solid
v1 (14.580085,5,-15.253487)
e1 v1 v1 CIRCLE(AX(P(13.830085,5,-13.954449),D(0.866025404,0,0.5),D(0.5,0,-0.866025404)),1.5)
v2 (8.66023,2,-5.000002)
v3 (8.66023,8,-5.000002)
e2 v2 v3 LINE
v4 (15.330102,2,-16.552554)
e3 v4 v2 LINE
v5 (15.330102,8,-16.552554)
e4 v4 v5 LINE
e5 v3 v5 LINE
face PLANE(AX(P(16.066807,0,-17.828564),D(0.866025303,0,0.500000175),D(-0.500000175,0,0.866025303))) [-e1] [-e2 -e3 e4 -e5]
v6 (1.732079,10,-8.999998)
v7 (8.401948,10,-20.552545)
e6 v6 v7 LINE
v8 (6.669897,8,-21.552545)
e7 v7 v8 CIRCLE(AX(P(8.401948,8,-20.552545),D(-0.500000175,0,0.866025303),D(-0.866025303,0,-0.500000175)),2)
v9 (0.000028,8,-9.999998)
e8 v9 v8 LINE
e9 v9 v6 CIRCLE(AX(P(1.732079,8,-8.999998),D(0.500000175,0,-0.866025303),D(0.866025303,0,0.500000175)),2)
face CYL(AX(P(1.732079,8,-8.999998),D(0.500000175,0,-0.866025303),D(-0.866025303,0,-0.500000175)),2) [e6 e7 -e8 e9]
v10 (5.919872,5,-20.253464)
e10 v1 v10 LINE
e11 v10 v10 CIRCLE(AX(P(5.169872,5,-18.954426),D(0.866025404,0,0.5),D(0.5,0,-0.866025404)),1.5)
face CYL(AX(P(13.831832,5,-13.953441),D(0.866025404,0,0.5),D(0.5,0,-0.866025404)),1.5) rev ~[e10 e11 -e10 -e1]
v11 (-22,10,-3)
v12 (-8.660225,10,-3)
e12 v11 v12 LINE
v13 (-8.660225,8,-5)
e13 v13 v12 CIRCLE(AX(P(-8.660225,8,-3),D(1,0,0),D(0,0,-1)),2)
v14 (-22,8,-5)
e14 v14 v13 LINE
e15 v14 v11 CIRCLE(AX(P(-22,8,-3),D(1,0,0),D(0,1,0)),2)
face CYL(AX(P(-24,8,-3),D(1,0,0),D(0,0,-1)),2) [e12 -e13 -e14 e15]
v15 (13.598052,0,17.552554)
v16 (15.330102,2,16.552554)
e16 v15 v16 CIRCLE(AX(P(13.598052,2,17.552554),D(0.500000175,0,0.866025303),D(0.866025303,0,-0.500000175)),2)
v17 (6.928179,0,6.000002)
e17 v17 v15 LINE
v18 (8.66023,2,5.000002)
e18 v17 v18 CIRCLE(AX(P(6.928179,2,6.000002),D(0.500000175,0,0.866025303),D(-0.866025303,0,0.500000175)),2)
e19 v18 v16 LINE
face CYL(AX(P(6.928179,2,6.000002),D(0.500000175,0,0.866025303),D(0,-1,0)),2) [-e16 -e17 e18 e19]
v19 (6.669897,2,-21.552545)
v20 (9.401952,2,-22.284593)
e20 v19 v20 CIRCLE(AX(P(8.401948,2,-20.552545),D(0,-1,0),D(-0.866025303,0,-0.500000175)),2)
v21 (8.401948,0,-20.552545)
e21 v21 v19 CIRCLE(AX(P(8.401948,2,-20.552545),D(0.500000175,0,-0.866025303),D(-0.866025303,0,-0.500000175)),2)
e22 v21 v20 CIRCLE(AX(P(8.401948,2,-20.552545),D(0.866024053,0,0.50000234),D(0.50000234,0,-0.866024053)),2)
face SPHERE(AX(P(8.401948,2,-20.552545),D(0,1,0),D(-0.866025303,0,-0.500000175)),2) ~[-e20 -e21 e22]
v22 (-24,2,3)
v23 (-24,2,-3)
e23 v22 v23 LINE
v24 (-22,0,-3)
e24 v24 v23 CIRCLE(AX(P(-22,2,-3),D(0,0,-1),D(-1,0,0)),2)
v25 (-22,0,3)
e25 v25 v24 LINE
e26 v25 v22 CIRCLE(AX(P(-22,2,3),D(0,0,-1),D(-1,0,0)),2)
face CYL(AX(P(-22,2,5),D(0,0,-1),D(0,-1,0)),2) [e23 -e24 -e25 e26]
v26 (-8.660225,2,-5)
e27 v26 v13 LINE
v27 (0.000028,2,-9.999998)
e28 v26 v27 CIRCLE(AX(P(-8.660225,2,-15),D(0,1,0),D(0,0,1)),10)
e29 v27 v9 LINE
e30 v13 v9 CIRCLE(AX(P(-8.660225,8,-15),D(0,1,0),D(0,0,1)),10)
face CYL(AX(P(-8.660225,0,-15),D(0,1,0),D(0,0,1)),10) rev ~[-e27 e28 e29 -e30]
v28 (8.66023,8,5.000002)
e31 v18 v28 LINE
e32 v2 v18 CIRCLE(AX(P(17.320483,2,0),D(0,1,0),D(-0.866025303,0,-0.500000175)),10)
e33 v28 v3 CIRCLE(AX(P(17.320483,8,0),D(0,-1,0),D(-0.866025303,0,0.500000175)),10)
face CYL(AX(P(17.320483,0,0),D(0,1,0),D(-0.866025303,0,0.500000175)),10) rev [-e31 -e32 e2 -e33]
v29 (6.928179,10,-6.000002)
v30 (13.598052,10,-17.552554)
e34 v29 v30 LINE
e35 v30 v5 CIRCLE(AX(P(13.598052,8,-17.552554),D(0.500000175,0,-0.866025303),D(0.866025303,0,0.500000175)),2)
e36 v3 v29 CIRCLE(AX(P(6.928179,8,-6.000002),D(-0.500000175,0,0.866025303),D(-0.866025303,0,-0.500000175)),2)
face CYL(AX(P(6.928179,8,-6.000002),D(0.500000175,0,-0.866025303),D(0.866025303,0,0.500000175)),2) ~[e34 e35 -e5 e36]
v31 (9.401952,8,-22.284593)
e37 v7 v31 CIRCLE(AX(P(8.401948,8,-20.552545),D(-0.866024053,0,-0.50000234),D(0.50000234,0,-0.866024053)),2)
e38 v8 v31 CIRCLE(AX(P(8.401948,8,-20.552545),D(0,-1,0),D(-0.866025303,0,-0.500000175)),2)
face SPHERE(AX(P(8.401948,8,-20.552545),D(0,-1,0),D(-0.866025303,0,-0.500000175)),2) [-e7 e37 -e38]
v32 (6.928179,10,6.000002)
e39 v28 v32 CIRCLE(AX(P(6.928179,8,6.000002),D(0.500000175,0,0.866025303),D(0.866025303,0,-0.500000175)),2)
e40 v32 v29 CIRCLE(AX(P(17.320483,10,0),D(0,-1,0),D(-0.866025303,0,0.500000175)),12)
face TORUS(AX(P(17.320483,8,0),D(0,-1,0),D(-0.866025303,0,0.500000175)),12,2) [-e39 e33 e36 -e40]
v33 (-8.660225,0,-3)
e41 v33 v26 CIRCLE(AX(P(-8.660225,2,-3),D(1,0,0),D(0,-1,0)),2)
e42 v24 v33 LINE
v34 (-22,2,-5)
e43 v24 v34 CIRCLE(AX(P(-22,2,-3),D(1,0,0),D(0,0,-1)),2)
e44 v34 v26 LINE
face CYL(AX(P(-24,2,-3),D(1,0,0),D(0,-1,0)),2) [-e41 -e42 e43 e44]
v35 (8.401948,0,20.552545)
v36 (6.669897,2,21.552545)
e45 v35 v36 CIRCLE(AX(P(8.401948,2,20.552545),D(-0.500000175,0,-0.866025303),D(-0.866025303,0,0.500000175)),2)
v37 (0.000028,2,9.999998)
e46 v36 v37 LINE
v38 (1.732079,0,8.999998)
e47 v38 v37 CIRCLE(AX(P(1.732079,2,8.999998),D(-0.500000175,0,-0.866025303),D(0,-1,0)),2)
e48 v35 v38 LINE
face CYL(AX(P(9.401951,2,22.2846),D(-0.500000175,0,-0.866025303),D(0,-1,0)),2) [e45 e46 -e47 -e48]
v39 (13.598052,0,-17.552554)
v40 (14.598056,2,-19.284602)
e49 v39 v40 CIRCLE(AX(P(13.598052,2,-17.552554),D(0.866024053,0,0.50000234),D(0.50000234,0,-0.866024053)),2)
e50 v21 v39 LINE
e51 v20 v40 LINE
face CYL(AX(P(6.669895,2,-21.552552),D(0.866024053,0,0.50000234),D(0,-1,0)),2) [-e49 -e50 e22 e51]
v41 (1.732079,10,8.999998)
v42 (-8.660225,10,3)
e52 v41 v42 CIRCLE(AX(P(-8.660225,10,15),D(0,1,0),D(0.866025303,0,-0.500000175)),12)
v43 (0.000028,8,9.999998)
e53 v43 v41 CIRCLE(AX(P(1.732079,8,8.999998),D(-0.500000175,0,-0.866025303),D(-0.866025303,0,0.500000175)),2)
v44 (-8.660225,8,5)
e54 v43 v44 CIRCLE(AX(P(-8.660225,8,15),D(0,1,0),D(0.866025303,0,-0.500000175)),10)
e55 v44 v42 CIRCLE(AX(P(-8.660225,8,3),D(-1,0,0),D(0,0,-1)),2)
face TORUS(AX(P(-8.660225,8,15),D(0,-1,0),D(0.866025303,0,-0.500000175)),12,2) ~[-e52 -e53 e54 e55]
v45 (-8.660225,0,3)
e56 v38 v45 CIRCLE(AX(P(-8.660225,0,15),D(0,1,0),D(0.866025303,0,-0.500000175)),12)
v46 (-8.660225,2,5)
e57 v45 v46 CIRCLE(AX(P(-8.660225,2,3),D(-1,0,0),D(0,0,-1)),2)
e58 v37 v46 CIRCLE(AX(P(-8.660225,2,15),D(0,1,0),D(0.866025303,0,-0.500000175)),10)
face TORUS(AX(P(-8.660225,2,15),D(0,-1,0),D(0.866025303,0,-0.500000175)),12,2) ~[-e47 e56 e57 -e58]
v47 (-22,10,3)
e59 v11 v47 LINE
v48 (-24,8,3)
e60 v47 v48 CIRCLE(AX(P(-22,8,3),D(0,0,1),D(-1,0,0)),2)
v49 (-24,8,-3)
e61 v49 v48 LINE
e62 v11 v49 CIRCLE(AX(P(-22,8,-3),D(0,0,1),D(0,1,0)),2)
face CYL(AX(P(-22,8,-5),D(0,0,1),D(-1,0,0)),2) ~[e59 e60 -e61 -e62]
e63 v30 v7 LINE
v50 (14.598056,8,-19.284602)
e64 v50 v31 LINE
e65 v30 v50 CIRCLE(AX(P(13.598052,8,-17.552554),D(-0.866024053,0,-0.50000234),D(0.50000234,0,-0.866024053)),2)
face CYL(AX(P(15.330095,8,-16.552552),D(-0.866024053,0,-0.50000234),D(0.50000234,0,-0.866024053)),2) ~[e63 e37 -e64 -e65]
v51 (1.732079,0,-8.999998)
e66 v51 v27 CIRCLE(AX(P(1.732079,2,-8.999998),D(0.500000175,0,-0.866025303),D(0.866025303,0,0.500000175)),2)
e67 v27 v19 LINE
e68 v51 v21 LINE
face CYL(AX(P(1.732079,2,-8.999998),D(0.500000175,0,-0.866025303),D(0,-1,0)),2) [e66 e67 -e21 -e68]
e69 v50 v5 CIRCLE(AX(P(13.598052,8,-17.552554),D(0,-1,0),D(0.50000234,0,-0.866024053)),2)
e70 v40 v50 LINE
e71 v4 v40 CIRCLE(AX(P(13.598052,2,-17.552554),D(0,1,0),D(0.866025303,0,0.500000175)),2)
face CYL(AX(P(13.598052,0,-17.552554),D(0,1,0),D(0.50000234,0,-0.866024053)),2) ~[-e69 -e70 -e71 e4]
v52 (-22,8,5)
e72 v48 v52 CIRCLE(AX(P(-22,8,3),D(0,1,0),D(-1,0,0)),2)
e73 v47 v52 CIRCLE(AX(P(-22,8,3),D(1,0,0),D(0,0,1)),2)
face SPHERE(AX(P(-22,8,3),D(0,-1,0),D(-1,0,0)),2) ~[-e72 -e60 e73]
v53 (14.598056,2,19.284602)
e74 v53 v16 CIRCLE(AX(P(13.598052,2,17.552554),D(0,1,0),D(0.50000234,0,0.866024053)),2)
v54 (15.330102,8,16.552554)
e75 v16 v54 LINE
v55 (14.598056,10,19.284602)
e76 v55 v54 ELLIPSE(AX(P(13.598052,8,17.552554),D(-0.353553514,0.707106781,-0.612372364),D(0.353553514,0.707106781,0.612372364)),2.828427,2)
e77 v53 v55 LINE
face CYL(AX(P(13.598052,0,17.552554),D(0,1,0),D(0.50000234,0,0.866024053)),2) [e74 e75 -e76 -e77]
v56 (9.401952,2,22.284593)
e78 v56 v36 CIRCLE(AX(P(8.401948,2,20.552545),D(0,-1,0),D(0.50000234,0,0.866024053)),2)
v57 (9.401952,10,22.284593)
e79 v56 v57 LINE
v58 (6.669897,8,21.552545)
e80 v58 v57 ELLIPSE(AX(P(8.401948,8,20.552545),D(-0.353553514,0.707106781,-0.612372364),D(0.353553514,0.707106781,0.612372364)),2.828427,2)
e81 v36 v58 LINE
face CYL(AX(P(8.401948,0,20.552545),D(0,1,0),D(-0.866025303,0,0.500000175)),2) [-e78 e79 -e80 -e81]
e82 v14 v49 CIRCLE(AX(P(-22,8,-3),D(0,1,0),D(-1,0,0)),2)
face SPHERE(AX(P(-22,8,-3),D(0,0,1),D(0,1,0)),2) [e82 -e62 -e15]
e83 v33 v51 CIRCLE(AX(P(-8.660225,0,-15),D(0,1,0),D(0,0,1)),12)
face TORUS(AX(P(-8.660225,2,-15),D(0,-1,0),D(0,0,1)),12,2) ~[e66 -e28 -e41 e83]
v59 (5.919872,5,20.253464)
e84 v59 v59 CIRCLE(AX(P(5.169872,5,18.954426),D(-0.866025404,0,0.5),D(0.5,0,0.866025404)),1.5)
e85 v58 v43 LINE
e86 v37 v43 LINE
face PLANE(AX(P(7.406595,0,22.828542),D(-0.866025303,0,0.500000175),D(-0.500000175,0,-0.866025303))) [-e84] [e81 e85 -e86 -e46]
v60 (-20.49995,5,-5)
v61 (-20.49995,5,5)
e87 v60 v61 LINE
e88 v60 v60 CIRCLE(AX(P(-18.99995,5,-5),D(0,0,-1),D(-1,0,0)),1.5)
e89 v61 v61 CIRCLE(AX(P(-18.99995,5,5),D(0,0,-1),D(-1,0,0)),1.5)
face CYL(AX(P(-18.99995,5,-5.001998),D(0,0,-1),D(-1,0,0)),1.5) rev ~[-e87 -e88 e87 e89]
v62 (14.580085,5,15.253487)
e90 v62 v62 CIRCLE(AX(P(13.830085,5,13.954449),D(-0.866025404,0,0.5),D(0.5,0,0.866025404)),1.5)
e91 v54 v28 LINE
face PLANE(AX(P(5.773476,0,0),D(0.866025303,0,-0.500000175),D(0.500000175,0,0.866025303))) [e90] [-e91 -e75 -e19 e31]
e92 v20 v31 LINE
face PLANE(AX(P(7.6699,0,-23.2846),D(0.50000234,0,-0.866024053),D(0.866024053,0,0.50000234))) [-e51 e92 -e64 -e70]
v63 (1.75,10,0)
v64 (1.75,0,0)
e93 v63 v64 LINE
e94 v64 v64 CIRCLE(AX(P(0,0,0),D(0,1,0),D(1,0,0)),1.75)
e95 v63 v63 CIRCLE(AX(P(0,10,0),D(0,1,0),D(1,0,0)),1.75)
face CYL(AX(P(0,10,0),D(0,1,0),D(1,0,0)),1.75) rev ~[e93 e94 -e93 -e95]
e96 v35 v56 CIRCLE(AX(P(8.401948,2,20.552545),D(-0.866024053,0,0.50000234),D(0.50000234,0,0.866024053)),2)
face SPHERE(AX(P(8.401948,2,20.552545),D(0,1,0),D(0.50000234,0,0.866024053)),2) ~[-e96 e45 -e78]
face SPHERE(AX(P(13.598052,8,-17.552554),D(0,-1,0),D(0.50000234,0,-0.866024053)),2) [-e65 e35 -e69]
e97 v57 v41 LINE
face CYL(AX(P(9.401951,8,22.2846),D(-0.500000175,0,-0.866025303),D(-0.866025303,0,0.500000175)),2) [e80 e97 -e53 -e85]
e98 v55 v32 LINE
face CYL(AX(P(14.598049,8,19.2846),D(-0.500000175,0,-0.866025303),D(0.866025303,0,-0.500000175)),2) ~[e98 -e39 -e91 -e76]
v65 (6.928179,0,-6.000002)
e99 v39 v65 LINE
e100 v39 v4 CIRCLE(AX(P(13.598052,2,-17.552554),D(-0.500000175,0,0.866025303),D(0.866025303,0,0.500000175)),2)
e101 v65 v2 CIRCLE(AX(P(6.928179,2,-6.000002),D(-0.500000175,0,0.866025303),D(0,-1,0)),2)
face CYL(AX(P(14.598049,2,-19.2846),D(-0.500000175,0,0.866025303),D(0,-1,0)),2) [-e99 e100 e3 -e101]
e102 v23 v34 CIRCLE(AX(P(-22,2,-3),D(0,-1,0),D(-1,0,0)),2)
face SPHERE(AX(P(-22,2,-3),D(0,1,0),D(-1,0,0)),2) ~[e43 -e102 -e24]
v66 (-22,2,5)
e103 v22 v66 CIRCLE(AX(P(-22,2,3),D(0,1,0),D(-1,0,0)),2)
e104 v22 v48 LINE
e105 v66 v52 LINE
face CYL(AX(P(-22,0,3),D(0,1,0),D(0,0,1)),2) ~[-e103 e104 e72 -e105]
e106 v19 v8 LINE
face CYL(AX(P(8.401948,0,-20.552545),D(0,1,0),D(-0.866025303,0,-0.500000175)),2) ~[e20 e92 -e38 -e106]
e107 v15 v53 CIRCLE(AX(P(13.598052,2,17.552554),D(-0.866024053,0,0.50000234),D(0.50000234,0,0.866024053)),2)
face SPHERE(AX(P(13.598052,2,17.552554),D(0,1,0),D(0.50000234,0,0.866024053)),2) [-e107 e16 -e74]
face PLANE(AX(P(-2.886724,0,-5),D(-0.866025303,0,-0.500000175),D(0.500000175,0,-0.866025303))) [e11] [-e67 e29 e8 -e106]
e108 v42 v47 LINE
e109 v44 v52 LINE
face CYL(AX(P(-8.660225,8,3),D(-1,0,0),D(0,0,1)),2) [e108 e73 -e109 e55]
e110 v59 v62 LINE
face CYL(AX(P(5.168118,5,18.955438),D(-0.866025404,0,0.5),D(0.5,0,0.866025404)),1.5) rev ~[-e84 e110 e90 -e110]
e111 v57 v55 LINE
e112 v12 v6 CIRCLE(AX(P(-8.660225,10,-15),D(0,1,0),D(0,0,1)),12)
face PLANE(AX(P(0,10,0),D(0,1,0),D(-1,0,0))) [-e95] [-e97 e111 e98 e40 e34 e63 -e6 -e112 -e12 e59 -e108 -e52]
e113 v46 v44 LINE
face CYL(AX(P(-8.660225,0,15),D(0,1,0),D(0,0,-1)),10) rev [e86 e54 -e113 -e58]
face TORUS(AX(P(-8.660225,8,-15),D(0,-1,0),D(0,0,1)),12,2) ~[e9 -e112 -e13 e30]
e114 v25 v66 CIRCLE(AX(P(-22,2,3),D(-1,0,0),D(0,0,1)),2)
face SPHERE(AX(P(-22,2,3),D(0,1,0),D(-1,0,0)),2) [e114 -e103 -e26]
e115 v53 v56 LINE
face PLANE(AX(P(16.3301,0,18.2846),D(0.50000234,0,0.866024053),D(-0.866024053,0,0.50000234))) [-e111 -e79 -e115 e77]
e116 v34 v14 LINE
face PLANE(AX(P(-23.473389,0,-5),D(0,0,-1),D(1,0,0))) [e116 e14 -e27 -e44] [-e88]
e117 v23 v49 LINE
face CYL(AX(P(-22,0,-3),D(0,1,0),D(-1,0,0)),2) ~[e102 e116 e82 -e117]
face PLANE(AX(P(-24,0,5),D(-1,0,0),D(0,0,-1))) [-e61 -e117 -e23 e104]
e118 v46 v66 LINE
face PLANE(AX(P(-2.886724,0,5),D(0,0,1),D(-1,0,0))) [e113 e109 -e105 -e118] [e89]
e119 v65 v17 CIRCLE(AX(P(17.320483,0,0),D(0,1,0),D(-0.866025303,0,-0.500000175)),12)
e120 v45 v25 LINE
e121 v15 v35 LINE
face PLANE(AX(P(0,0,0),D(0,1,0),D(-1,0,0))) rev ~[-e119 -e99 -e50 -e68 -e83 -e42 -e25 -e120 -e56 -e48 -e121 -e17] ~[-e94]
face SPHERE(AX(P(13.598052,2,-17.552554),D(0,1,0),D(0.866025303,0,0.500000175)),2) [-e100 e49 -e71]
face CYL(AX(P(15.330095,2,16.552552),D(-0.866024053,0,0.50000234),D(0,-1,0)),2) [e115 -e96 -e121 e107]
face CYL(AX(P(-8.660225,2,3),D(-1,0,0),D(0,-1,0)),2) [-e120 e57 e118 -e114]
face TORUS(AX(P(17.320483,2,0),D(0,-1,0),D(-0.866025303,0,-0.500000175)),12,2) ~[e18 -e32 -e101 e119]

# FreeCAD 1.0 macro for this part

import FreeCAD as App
import Part
import Sketcher


def edges_at(feature, points):
    """Names of the edges that pass closest to the given points."""
    edges = feature.Shape.Edges
    near = lambda p: min(range(len(edges)), key=lambda i: edges[i].distToShape(Part.Vertex(*p))[0])
    return sorted({f"Edge{near(p) + 1}" for p in points})


def add_polygon(sketch, points):
    """Adds a closed chain of lines whose ends are joined by coincident constraints."""
    first, n = sketch.GeometryCount, len(points)
    for a, b in zip(points, points[1:] + points[:1]):
        sketch.addGeometry(Part.LineSegment(App.Vector(*a, 0), App.Vector(*b, 0)), False)
    for i in range(n):
        sketch.addConstraint(Sketcher.Constraint("Coincident", first + i, 2, first + (i + 1) % n, 1))

doc = App.newDocument("Part")
body = doc.addObject("PartDesign::Body", "Body")

sketch1 = body.newObject("Sketcher::SketchObject", "Sketch")
sketch1.AttachmentSupport = (doc.getObject("XZ_Plane"), [""])
sketch1.MapMode = "FlatFace"
add_polygon(sketch1, [(-3, 5), (8, 23), (16, 18), (6, 0), (16, -18), (8, -23), (-3, -5), (-24, -5), (-24, 5)])
sketch1.addConstraint([
    Sketcher.Constraint("Horizontal", 6),
    Sketcher.Constraint("Vertical", 7),
    Sketcher.Constraint("Horizontal", 8),
    Sketcher.Constraint("Symmetric", 1, 2, 3, 2, -1),
    Sketcher.Constraint("Symmetric", 0, 2, 4, 2, -1),
    Sketcher.Constraint("Symmetric", 5, 2, 8, 2, -1),
    Sketcher.Constraint("PointOnObject", 2, 2, -1),
    Sketcher.Constraint("Perpendicular", 0, 1),
    Sketcher.Constraint("Perpendicular", 1, 2),
    Sketcher.Constraint("Equal", 0, 2),
    Sketcher.Constraint("DistanceY", 7, 1, 7, 2, 10.0),
    Sketcher.Constraint("Distance", 1, 10.0),
    Sketcher.Constraint("DistanceX", 6, 2, -1, 1, 24.0),
    Sketcher.Constraint("DistanceX", -1, 1, 0, 2, 7.67),
    Sketcher.Constraint("DistanceX", 6, 2, 6, 1, 21.1133),
])
pad1 = body.newObject("PartDesign::Pad", "Pad")
pad1.Profile = sketch1
pad1.Length = 10
pad1.Reversed = True

sketch2 = body.newObject("Sketcher::SketchObject", "Sketch001")
sketch2.Placement = App.Placement(App.Vector(5.7735, 0, 0), App.Rotation(App.Vector(0.5, 0, -0.866025404), App.Vector(0, 1, 0), App.Vector(0.866025404, 0, 0.5), "ZXY"))
sketch2.addGeometry(Part.Circle(App.Vector(16.1, 5, 0), App.Vector(0, 0, 1), 1.5), False)
sketch2.addConstraint([
    Sketcher.Constraint("Diameter", 0, 3.0),
    Sketcher.Constraint("DistanceY", -1, 1, 0, 3, 5.0),
    Sketcher.Constraint("DistanceX", -1, 1, 0, 3, 16.1132),
])
pocket1 = body.newObject("PartDesign::Pocket", "Pocket")
pocket1.Profile = sketch2
pocket1.Length = 10

sketch3 = body.newObject("Sketcher::SketchObject", "Sketch002")
sketch3.AttachmentSupport = (doc.getObject("XZ_Plane"), [""])
sketch3.MapMode = "FlatFace"
sketch3.AttachmentOffset = App.Placement(App.Vector(0, 0, -10), App.Rotation())
sketch3.addGeometry(Part.Circle(App.Vector(0, 0, 0), App.Vector(0, 0, 1), 1.8), False)
sketch3.addConstraint([
    Sketcher.Constraint("Coincident", 0, 3, -1, 1),
    Sketcher.Constraint("Diameter", 0, 3.5),
])
pocket2 = body.newObject("PartDesign::Pocket", "Pocket001")
pocket2.Profile = sketch3
pocket2.Length = 10
pocket2.Reversed = True
doc.recompute()

polarpattern = body.newObject("PartDesign::PolarPattern", "PolarPattern")
polarpattern.Originals = [pocket1]
polarpattern.Axis = (doc.getObject("Y_Axis"), [""])
polarpattern.Angle = 360
polarpattern.Occurrences = 3
body.Tip = polarpattern
doc.recompute()

fillet = body.newObject("PartDesign::Fillet", "Fillet")
fillet.Base = (polarpattern, edges_at(polarpattern, [(5.774, 5, 0), (-2.887, 5, 5), (-2.887, 5, -5)]))
fillet.Radius = 10
doc.recompute()

fillet2 = body.newObject("PartDesign::Fillet", "Fillet001")
fillet2.Base = (fillet, edges_at(fillet, [
    (7.67, 5, 23.285),
    (16.33, 5, 18.285),
    (-24, 5, 5),
    (-24, 10, 0),
    (16.33, 5, -18.285),
    (12, 10, -20.785),
    (7.67, 5, -23.285),
    (-16.33, 10, -5),
    (3.835, 10, -16.642),
    (12.495, 10, 11.642),
    (12.495, 10, -11.642),
    (-16.33, 10, 5),
    (3.835, 10, 16.642),
    (-24, 5, -5),
    (-24, 0, 0),
    (12, 0, 20.785),
    (12.495, 0, -11.642),
    (12.495, 0, 11.642),
    (-16.33, 0, 5),
    (3.835, 0, 16.642),
    (-16.33, 0, -5),
    (3.835, 0, -16.642),
    (12, 0, -20.785),
]))
fillet2.Radius = 2

doc.recompute()
